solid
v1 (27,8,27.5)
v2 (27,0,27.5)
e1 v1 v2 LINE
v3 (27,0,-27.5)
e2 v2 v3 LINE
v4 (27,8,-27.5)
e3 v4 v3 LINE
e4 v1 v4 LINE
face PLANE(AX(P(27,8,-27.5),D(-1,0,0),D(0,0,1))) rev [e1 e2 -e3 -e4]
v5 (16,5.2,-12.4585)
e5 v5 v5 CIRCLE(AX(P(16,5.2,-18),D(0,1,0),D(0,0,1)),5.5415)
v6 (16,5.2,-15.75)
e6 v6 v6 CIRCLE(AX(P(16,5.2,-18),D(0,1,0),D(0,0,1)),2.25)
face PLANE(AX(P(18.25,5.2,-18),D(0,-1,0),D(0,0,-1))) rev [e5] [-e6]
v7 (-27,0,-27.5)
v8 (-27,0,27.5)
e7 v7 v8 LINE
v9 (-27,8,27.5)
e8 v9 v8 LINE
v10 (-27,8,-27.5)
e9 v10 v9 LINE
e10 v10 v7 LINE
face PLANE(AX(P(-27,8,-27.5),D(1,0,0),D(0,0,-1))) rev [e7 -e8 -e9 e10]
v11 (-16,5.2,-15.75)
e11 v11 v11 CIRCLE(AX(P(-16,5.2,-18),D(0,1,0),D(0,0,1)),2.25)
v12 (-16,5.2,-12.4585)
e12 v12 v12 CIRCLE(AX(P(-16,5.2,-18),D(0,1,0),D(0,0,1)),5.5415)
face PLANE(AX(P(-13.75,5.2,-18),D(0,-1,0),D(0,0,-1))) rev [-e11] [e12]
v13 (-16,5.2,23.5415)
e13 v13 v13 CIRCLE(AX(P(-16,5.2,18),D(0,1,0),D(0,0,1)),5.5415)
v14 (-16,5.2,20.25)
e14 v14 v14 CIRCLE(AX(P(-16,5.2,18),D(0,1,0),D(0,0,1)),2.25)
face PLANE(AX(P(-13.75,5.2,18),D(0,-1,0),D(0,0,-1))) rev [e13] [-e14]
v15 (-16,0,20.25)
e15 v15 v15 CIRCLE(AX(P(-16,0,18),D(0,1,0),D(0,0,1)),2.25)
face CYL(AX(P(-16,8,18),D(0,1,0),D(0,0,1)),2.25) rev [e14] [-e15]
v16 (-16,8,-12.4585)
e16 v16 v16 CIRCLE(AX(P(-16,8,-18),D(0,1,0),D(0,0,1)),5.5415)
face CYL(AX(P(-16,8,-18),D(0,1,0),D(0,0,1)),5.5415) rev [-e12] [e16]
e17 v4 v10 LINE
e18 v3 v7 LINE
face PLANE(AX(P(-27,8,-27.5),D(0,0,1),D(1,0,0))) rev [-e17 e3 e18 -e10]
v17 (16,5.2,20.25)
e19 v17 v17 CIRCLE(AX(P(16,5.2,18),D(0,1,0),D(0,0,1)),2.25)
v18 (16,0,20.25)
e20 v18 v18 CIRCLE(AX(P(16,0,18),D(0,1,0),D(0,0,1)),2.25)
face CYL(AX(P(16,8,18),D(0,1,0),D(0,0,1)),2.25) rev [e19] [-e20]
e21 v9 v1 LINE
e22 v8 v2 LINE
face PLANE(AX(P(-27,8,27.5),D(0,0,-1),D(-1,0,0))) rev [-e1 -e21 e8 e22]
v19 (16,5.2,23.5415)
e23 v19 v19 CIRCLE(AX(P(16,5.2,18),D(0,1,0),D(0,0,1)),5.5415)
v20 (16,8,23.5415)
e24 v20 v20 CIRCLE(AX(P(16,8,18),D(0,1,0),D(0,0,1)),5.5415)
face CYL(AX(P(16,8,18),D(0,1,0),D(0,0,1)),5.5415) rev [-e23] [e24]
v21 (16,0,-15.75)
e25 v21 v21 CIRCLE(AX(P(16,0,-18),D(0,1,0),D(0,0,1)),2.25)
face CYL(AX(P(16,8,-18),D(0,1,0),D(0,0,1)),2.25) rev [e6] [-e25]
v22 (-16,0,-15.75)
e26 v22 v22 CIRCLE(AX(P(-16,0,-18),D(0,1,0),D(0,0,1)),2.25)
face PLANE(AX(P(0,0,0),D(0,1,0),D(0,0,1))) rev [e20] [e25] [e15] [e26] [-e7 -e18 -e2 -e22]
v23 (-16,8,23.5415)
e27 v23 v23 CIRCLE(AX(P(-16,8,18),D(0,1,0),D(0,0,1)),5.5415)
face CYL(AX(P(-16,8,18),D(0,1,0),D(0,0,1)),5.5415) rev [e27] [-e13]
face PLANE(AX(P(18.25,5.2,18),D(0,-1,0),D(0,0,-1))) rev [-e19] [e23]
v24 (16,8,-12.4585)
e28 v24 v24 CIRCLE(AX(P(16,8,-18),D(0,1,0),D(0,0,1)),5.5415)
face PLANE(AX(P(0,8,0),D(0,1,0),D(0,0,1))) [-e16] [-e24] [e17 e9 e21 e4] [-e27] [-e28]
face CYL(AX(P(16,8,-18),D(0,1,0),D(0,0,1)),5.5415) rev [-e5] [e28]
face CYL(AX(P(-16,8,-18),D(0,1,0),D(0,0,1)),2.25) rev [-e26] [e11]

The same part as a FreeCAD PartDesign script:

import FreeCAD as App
import Part
import Sketcher
from FreeCAD import Vector
Q = App.Units.Quantity


def add_polygon(sketch, points):
    """Adds a closed chain of lines whose ends are joined by coincident constraints."""
    first, n = sketch.GeometryCount, len(points)
    for a, b in zip(points, points[1:] + points[:1]):
        sketch.addGeometry(Part.LineSegment(App.Vector(*a, 0), App.Vector(*b, 0)), False)
    for i in range(n):
        sketch.addConstraint(Sketcher.Constraint("Coincident", first + i, 2, first + (i + 1) % n, 1))

doc = App.newDocument("Part")
params = doc.addObject("Spreadsheet::Sheet", "Params")
for row, (alias, value) in enumerate([
    ("sketch1_width", "54 mm"),
    ("sketch1_height", "55 mm"),
    ("pad1_length", "8 mm"),
    ("sketch2_diameter", "4.5 mm"),
    ("hole_diameter", "4.5 mm"),
    ("hole_cbore_diameter", "11.083 mm"),
    ("hole_cbore_depth", "2.8 mm"),
], start=1):
    params.set(f"A{row}", alias)
    params.set(f"B{row}", "=" + value)
    params.setAlias(f"B{row}", alias)

body = doc.addObject("PartDesign::Body", "Body")

sketch1 = body.newObject("Sketcher::SketchObject", "Sketch")
sketch1.AttachmentSupport = (doc.getObject("XZ_Plane"), [""])
sketch1.MapMode = "FlatFace"
add_polygon(sketch1, [(-27, -28), (-27, 28), (27, 28), (27, -28)])
sketch1.addConstraint(Sketcher.Constraint("Vertical", 0))
sketch1.addConstraint(Sketcher.Constraint("Horizontal", 1))
sketch1.addConstraint(Sketcher.Constraint("Vertical", 2))
sketch1.addConstraint(Sketcher.Constraint("Horizontal", 3))
sketch1.addConstraint(Sketcher.Constraint("Symmetric", 0, 2, 2, 2, -1, 1))
sketch1.addConstraint(Sketcher.Constraint("DistanceX", 1, 1, 1, 2, Q("54 mm")))
sketch1.addConstraint(Sketcher.Constraint("DistanceY", 0, 1, 0, 2, Q("55 mm")))
sketch1.setExpression("Constraints[9]", "Params.sketch1_width")
sketch1.setExpression("Constraints[10]", "Params.sketch1_height")
pad1 = body.newObject("PartDesign::Pad", "Pad")
pad1.Profile = sketch1
pad1.setExpression("Length", "Params.pad1_length")
pad1.Reversed = True

sketch2 = body.newObject("Sketcher::SketchObject", "Sketch001")
sketch2.AttachmentSupport = (doc.getObject("XZ_Plane"), [""])
sketch2.MapMode = "FlatFace"
sketch2.AttachmentOffset = App.Placement(Vector(0, 0, -8), App.Rotation())
sketch2.addGeometry(Part.Circle(Vector(-16, -18, 0), Vector(0, 0, 1), 2.2), False)
sketch2.addGeometry(Part.Circle(Vector(16, -18, 0), Vector(0, 0, 1), 2.2), False)
sketch2.addGeometry(Part.Circle(Vector(16, 18, 0), Vector(0, 0, 1), 2.2), False)
sketch2.addGeometry(Part.Circle(Vector(-16, 18, 0), Vector(0, 0, 1), 2.2), False)
sketch2.addConstraint(Sketcher.Constraint("Equal", 0, 1))
sketch2.addConstraint(Sketcher.Constraint("Equal", 1, 2))
sketch2.addConstraint(Sketcher.Constraint("Equal", 2, 3))
sketch2.addConstraint(Sketcher.Constraint("Symmetric", 0, 3, 2, 3, -1, 1))
sketch2.addConstraint(Sketcher.Constraint("Symmetric", 1, 3, 3, 3, -1, 1))
sketch2.addConstraint(Sketcher.Constraint("Symmetric", 0, 3, 1, 3, -2))
sketch2.addConstraint(Sketcher.Constraint("Diameter", 0, Q("4.5 mm")))
sketch2.addConstraint(Sketcher.Constraint("DistanceX", 0, 3, -1, 1, Q("16 mm")))
sketch2.addConstraint(Sketcher.Constraint("DistanceY", 0, 3, -1, 1, Q("18 mm")))
sketch2.setExpression("Constraints[6]", "Params.sketch2_diameter")
doc.recompute()
hole = body.newObject("PartDesign::Hole", "Hole")
hole.Profile = sketch2
hole.ThreadType = "None"
hole.setExpression("Diameter", "Params.hole_diameter")
hole.DepthType = "ThroughAll"
hole.HoleCutType = "Counterbore"
hole.setExpression("HoleCutDiameter", "Params.hole_cbore_diameter")
hole.setExpression("HoleCutDepth", "Params.hole_cbore_depth")
hole.Reversed = True

doc.recompute()
